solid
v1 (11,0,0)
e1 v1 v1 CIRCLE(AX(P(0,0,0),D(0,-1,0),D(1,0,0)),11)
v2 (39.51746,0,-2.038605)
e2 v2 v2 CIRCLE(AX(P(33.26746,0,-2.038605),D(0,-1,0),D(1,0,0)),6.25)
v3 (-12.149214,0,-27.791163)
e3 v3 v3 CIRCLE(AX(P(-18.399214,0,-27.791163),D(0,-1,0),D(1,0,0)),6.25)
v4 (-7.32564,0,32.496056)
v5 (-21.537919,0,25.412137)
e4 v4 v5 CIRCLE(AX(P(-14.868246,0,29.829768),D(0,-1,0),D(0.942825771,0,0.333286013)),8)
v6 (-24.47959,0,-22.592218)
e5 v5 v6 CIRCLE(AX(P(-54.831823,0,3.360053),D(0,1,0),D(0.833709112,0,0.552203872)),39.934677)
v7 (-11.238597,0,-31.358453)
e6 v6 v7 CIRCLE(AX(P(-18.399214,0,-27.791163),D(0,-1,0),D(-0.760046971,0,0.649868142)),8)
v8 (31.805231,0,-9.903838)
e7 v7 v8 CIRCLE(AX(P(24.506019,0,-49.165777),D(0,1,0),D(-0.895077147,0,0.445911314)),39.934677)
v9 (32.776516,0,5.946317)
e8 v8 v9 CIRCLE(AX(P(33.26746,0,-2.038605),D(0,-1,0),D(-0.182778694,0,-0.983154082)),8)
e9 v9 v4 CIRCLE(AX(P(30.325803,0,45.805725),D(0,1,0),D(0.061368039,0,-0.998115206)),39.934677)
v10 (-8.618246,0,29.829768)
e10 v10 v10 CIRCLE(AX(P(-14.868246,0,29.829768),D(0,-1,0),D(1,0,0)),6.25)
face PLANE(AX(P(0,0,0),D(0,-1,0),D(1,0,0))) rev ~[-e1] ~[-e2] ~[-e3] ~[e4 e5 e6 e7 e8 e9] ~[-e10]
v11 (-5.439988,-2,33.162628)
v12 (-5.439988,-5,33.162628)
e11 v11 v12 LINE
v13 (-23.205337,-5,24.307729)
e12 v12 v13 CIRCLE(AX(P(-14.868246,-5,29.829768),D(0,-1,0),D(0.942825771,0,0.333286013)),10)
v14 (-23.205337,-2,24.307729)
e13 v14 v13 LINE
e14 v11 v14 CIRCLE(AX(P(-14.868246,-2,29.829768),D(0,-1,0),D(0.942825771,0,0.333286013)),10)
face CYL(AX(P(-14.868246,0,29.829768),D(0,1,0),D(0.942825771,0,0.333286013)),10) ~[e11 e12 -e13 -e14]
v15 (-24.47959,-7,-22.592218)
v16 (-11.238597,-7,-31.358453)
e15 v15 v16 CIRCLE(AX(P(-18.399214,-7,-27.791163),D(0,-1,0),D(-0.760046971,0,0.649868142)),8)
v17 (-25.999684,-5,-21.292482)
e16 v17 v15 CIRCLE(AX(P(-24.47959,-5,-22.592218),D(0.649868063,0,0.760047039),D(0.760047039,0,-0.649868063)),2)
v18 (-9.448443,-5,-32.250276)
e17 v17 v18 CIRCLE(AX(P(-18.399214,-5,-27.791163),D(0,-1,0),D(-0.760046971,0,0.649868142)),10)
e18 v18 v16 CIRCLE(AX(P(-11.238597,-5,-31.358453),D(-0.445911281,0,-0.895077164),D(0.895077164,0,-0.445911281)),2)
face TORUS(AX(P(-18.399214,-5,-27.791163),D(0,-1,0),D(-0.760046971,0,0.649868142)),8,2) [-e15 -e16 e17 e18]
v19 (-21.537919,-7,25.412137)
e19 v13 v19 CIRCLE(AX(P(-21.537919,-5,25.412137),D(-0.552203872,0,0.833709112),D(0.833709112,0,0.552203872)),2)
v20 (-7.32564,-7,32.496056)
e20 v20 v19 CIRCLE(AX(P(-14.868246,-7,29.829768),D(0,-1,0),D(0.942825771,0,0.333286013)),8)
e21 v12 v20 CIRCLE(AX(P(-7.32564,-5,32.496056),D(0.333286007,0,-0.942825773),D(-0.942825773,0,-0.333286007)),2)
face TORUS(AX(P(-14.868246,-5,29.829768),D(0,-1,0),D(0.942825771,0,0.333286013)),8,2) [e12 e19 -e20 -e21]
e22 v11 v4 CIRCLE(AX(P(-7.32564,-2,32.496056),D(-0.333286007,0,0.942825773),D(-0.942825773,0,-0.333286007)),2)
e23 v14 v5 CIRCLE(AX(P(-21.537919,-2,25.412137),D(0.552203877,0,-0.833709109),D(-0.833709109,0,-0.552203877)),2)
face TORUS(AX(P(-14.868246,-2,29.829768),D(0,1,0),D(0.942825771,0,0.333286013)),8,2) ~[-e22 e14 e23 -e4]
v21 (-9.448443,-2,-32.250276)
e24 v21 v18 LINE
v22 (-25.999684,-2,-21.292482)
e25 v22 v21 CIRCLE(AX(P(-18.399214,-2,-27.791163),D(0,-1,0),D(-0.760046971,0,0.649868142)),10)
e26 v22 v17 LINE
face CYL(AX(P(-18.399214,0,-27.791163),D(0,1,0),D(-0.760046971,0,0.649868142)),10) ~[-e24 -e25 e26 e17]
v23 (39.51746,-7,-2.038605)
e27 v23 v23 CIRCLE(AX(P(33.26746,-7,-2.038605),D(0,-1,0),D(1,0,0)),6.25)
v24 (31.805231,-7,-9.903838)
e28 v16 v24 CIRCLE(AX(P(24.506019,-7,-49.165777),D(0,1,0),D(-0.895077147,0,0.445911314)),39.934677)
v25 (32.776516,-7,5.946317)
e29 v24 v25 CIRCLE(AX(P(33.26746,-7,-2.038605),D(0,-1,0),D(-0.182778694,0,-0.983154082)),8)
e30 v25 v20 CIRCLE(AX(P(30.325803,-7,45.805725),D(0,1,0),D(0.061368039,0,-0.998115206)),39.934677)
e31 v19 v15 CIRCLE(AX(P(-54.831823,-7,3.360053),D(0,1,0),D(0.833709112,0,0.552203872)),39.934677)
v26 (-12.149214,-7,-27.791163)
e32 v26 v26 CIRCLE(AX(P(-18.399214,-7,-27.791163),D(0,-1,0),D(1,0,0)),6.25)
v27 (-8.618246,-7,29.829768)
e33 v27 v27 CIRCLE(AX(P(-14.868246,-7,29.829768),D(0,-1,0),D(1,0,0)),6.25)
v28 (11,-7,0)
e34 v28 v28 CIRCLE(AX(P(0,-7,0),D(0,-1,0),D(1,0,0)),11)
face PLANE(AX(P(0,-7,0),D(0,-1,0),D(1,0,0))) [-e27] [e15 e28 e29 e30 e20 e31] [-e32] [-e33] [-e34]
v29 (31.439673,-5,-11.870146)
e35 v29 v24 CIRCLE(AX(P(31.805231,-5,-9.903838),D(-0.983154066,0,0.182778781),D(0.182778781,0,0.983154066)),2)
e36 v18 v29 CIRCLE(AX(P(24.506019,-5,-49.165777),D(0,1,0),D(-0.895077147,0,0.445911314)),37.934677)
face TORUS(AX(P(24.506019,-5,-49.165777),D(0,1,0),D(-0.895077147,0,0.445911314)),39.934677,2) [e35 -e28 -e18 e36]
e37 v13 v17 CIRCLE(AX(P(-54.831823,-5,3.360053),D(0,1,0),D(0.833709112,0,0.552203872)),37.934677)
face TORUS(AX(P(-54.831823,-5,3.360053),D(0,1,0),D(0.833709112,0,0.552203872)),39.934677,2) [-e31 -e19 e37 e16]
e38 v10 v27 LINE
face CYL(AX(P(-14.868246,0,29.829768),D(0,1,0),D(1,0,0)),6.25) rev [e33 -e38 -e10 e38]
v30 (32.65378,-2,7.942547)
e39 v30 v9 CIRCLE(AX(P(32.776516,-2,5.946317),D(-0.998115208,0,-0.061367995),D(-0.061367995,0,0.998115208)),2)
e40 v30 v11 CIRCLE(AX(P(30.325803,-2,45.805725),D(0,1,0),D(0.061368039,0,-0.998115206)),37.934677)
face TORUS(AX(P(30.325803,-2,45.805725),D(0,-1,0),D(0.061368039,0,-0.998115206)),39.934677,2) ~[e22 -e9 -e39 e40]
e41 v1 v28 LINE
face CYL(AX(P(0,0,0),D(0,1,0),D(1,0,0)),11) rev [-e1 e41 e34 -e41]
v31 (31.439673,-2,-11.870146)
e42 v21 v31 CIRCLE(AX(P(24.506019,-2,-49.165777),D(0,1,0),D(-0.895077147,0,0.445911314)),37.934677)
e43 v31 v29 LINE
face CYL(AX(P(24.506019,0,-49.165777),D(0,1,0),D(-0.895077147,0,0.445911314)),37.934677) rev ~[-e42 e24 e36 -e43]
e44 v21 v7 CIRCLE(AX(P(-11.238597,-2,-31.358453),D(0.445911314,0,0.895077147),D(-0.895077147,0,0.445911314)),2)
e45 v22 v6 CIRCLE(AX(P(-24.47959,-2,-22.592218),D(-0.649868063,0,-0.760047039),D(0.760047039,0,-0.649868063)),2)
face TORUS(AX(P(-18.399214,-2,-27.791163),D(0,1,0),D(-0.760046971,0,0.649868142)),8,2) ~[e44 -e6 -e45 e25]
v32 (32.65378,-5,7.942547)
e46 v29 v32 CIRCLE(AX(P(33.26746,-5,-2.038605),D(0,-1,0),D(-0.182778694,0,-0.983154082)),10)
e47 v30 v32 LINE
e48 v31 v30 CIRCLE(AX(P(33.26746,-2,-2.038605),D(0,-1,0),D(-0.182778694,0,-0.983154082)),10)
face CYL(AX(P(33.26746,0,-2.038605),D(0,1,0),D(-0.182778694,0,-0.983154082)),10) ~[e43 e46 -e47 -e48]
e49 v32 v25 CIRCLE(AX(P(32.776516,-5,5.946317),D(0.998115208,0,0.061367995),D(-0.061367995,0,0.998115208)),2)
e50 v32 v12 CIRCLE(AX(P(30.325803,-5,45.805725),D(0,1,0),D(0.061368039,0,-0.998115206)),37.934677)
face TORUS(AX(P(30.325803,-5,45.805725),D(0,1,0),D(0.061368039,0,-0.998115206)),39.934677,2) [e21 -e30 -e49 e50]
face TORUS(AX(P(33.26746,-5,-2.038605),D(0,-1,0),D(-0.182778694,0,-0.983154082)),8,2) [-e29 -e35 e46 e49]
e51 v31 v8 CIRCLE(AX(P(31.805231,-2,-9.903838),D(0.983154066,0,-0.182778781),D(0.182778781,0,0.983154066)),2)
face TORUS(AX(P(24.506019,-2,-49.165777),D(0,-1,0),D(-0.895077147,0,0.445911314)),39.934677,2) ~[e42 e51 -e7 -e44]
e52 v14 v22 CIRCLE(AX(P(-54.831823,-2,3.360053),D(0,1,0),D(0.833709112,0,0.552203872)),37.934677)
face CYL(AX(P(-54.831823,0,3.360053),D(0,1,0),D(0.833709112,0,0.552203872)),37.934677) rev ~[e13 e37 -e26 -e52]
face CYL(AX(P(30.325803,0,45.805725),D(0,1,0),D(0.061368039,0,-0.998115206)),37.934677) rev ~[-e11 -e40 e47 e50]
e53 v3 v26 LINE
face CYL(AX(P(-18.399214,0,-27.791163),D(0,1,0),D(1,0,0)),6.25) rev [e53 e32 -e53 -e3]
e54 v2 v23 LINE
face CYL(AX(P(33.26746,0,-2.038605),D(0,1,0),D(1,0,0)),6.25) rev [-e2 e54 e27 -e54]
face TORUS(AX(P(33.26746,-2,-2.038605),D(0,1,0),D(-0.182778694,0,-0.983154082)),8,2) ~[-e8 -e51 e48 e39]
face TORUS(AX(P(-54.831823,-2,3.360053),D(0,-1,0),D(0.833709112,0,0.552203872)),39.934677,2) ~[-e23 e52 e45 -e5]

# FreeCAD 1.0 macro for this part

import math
import FreeCAD as App
import Part
import Sketcher

V = App.Vector


def edges_at(feature, points):
    """Names of the edges that pass closest to the given points."""
    edges = feature.Shape.Edges
    near = lambda p: min(range(len(edges)), key=lambda i: edges[i].distToShape(Part.Vertex(*p))[0])
    return sorted({f"Edge{near(p) + 1}" for p in points})

doc = App.newDocument("Part")
body = doc.addObject("PartDesign::Body", "Body")

sketch1 = body.newObject("Sketcher::SketchObject", "Sketch")
sketch1.AttachmentSupport = (doc.getObject("XZ_Plane"), [""])
sketch1.MapMode = "FlatFace"
sketch1.addGeometry([
    Part.ArcOfCircle(Part.Circle(V(25, -49, 0), V(0, 0, 1), 38), math.radians(79), math.radians(154)),
    Part.ArcOfCircle(Part.Circle(V(33, -2, 0), V(0, 0, 1), 10), math.radians(-101), math.radians(94)),
    Part.ArcOfCircle(Part.Circle(V(30, 46, 0), V(0, 0, 1), 38), math.radians(-161), math.radians(-86)),
    Part.ArcOfCircle(Part.Circle(V(-15, 30, 0), V(0, 0, 1), 10), math.radians(19), math.radians(214)),
    Part.ArcOfCircle(Part.Circle(V(-55, 3, 0), V(0, 0, 1), 38), math.radians(-41), math.radians(34)),
    Part.ArcOfCircle(Part.Circle(V(-18, -28, 0), V(0, 0, 1), 10), math.radians(139), math.radians(334)),
    Part.Circle(V(-18, -28, 0), V(0, 0, 1), 6),
    Part.Circle(V(0, 0, 0), V(0, 0, 1), 11),
    Part.Circle(V(33, -2, 0), V(0, 0, 1), 6),
    Part.Circle(V(-15, 30, 0), V(0, 0, 1), 6),
], False)
sketch1.addConstraint([
    Sketcher.Constraint("Tangent", 0, 1, 1, 1),
    Sketcher.Constraint("Tangent", 1, 2, 2, 2),
    Sketcher.Constraint("Tangent", 2, 1, 3, 1),
    Sketcher.Constraint("Tangent", 3, 2, 4, 2),
    Sketcher.Constraint("Tangent", 4, 1, 5, 1),
    Sketcher.Constraint("Tangent", 5, 2, 0, 2),
    Sketcher.Constraint("Coincident", 7, 3, -1, 1),
    Sketcher.Constraint("Coincident", 6, 3, 5, 3),
    Sketcher.Constraint("Coincident", 8, 3, 1, 3),
    Sketcher.Constraint("Coincident", 9, 3, 3, 3),
    Sketcher.Constraint("Equal", 0, 2),
    Sketcher.Constraint("Equal", 1, 3),
    Sketcher.Constraint("Equal", 2, 4),
    Sketcher.Constraint("Equal", 3, 5),
    Sketcher.Constraint("Equal", 6, 8),
    Sketcher.Constraint("Equal", 8, 9),
    Sketcher.Constraint("Diameter", 7, 22.0),
    Sketcher.Constraint("Radius", 1, 10.0),
    Sketcher.Constraint("Diameter", 6, 12.5),
    Sketcher.Constraint("Radius", 0, 37.934677),
    Sketcher.Constraint("DistanceY", 3, 2, 2, 1, 8.854899),
    Sketcher.Constraint("DistanceY", 0, 3, 5, 2, 16.915501),
    Sketcher.Constraint("DistanceX", -1, 1, 0, 3, 24.506019),
    Sketcher.Constraint("DistanceX", -1, 1, 1, 3, 33.26746),
    Sketcher.Constraint("DistanceY", -1, 1, 9, 3, 29.829768),
    Sketcher.Constraint("DistanceX", -1, 1, 1, 2, 32.65378),
])
pad1 = body.newObject("PartDesign::Pad", "Pad")
pad1.Profile = sketch1
pad1.Length = 7
doc.recompute()

fillet = body.newObject("PartDesign::Fillet", "Fillet")
fillet.Base = (pad1, edges_at(pad1, [(-16.968, -7, 1.04), (7.584, 0, -15.215)]))
fillet.Radius = 2

doc.recompute()
